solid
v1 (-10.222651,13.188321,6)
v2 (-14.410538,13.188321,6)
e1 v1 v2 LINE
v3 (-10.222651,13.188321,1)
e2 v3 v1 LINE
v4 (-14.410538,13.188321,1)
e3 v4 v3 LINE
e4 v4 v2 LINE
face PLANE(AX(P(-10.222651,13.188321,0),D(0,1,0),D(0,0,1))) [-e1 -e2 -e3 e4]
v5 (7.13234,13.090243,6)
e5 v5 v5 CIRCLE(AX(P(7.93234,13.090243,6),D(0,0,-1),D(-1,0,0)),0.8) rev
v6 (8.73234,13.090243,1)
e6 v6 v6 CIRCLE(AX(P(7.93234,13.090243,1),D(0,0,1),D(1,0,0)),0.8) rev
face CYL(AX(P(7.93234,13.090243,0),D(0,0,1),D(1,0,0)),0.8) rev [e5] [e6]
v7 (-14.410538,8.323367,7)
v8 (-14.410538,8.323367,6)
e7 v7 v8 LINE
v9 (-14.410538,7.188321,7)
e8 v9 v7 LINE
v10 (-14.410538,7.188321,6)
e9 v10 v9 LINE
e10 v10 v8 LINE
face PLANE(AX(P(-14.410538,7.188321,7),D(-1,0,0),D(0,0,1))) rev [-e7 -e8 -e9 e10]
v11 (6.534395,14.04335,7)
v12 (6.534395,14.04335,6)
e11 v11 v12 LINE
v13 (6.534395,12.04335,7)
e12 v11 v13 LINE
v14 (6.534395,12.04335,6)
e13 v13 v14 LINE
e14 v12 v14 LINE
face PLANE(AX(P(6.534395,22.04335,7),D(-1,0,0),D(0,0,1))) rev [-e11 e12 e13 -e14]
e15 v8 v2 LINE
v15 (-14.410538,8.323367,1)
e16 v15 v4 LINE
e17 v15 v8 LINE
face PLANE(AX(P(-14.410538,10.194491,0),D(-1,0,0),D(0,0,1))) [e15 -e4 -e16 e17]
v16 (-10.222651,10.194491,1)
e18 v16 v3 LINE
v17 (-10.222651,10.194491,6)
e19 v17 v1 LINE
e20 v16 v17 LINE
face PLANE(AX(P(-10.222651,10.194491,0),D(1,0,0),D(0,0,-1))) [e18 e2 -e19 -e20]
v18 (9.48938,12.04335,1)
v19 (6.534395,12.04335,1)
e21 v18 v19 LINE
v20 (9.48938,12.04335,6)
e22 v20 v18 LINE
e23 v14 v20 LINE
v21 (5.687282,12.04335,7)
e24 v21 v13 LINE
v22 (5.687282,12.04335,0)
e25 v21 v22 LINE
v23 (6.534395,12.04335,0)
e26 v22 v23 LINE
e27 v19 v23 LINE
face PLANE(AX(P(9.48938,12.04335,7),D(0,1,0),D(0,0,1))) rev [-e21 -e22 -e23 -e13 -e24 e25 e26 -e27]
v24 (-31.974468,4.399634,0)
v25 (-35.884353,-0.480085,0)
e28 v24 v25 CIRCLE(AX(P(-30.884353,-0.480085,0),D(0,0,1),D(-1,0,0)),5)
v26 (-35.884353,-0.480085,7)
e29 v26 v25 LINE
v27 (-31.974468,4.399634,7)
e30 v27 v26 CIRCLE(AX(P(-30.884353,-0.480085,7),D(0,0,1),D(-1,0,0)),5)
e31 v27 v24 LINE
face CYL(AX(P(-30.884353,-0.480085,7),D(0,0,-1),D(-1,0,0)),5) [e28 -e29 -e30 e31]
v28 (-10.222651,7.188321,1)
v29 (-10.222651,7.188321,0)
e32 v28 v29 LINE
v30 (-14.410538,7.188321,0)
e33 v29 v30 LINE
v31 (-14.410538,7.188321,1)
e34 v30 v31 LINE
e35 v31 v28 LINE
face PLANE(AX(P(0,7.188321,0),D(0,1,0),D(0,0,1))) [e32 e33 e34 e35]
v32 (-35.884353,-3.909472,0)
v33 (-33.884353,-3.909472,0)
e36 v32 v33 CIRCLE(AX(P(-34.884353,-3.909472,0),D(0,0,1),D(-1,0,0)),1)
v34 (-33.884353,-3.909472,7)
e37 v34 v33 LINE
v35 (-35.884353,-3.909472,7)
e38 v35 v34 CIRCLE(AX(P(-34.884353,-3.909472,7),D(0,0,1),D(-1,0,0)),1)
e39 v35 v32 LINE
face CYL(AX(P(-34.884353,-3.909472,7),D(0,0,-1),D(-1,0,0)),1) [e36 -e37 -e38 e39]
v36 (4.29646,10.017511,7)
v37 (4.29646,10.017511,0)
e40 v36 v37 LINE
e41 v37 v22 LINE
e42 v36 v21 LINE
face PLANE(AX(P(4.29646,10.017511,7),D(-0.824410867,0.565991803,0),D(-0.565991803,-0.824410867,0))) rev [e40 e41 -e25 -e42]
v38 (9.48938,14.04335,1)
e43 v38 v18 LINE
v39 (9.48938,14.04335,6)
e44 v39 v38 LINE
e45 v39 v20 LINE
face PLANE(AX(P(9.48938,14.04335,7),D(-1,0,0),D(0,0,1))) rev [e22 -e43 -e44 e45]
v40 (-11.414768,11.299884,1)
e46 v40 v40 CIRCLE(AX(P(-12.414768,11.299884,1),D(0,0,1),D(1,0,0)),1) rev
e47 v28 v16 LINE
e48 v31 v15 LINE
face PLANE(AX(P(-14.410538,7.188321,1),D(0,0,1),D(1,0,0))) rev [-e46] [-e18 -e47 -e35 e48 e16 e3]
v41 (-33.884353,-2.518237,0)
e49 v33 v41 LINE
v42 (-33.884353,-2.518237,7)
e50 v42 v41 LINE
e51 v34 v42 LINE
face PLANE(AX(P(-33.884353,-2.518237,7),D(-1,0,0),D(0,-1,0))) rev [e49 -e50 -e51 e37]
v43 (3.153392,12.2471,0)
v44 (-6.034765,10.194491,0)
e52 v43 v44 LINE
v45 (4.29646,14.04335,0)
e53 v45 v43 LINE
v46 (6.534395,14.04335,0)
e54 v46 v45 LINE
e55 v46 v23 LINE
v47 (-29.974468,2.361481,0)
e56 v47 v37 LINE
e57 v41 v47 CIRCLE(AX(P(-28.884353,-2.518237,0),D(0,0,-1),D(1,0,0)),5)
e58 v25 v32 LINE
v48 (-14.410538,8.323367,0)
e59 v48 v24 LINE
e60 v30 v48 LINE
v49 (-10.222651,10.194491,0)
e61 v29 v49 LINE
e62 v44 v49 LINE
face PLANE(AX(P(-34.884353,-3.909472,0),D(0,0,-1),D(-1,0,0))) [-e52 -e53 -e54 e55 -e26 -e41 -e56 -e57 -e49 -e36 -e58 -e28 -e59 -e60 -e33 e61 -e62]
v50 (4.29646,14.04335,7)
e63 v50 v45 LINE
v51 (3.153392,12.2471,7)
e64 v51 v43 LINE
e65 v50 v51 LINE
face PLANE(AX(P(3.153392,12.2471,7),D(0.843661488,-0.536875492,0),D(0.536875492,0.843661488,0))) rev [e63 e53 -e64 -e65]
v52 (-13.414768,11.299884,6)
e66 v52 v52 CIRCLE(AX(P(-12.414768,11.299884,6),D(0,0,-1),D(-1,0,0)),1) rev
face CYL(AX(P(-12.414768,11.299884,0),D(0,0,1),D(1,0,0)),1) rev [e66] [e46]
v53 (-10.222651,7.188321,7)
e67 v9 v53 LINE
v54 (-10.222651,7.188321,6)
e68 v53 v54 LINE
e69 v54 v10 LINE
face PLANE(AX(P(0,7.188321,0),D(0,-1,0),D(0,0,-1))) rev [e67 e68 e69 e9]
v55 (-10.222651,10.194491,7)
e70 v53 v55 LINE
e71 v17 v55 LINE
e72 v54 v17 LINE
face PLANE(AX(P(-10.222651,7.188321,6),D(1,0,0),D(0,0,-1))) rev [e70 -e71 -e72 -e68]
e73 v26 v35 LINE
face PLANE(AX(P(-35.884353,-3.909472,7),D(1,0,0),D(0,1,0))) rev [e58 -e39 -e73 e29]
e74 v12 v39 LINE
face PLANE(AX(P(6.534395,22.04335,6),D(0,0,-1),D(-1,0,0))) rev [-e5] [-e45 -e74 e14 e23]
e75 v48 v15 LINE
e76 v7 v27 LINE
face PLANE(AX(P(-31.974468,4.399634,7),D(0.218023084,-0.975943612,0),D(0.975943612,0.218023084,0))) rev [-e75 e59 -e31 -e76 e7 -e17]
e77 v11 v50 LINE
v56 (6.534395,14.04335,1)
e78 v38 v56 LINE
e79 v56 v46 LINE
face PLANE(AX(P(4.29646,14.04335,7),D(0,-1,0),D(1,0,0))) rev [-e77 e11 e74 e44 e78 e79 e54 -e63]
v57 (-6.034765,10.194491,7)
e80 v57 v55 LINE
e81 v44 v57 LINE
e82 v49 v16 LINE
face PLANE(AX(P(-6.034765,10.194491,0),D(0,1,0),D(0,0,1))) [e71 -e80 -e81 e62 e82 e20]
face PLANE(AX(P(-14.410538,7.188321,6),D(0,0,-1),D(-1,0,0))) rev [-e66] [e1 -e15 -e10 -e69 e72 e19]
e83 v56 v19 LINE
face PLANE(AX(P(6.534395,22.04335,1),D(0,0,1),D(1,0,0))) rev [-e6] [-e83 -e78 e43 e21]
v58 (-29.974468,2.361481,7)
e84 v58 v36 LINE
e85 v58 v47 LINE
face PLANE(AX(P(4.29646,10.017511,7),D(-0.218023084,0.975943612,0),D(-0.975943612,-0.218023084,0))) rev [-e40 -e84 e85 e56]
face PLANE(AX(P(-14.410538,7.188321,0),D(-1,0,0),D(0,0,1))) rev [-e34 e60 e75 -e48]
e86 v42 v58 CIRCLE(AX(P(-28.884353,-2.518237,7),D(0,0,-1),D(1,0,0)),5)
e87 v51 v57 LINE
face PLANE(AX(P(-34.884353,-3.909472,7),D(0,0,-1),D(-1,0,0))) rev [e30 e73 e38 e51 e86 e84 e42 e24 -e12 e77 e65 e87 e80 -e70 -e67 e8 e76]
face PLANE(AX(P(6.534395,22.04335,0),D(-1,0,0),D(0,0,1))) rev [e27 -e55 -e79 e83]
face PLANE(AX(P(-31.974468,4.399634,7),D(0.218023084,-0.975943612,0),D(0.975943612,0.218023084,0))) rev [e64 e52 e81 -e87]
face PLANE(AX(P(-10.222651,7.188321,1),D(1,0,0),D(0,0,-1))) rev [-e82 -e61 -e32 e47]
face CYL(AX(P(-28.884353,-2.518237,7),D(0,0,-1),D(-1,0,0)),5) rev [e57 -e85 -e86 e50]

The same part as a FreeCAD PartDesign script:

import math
import FreeCAD as App
import Part
import Sketcher
from FreeCAD import Vector


def add_polygon(sketch, points):
    """Adds a closed chain of lines whose ends are joined by coincident constraints."""
    first, n = sketch.GeometryCount, len(points)
    for a, b in zip(points, points[1:] + points[:1]):
        sketch.addGeometry(Part.LineSegment(App.Vector(*a, 0), App.Vector(*b, 0)), False)
    for i in range(n):
        sketch.addConstraint(Sketcher.Constraint("Coincident", first + i, 2, first + (i + 1) % n, 1))

doc = App.newDocument("Part")
params = doc.addObject("Spreadsheet::Sheet", "Params")
for row, (alias, value) in enumerate([
    ("sketch1_radius", "5 mm"),
    ("sketch1_radius2", "1 mm"),
    ("sketch1_height", "2 mm"),
    ("pad1_length", "7 mm"),
    ("pad2_length", "7 mm"),
    ("sketch3_diameter", "2 mm"),
    ("pocket1_length", "7 mm"),
    ("sketch4_diameter", "1.6 mm"),
    ("pocket2_length", "7 mm"),
    ("sketch5_height", "1 mm"),
    ("pocket3_length", "10 mm"),
    ("sketch6_height", "1 mm"),
    ("pocket4_length", "6 mm"),
], start=1):
    params.set(f"A{row}", alias)
    params.set(f"B{row}", "=" + value)
    params.setAlias(f"B{row}", alias)

body = doc.addObject("PartDesign::Body", "Body")

# Sketch on XY plane
sketch1 = body.newObject("Sketcher::SketchObject", "Sketch")
sketch1.AttachmentSupport = (doc.getObject("XY_Plane"), [""])
sketch1.MapMode = "FlatFace"
sketch1.addGeometry([
    Part.LineSegment(Vector(4.29646, 14.04335, 0), Vector(3.153392, 12.2471, 0)),  # 0
    Part.LineSegment(Vector(3.153392, 12.2471, 0), Vector(-31.974468, 4.399634, 0)),  # 1
    Part.ArcOfCircle(Part.Circle(Vector(-30.884353, -0.480085, 0), Vector(0, 0, 1), 5), math.radians(102.592946), math.radians(180)),  # 2
    Part.LineSegment(Vector(-35.884353, -0.480085, 0), Vector(-35.884353, -3.909472, 0)),  # 3
    Part.ArcOfCircle(Part.Circle(Vector(-34.884353, -3.909472, 0), Vector(0, 0, 1), 1), math.radians(180), math.radians(360)),  # 4
    Part.LineSegment(Vector(-33.884353, -3.909472, 0), Vector(-33.884353, -2.518237, 0)),  # 5
    Part.ArcOfCircle(Part.Circle(Vector(-28.884353, -2.518237, 0), Vector(0, 0, 1), 5), math.radians(102.592946), math.radians(180)),  # 6
    Part.LineSegment(Vector(-29.974468, 2.361481, 0), Vector(4.29646, 10.017511, 0)),  # 7
    Part.LineSegment(Vector(4.29646, 10.017511, 0), Vector(5.687282, 12.04335, 0)),  # 8
    Part.LineSegment(Vector(5.687282, 12.04335, 0), Vector(9.48938, 12.04335, 0)),  # 9
    Part.LineSegment(Vector(9.48938, 12.04335, 0), Vector(9.48938, 14.04335, 0)),  # 10
    Part.LineSegment(Vector(9.48938, 14.04335, 0), Vector(4.29646, 14.04335, 0)),  # 11
], False)
sketch1.addConstraint([
    Sketcher.Constraint("Coincident", 0, 2, 1, 1),
    Sketcher.Constraint("Tangent", 1, 2, 2, 1),
    Sketcher.Constraint("Tangent", 2, 2, 3, 1),
    Sketcher.Constraint("Tangent", 3, 2, 4, 1),
    Sketcher.Constraint("Tangent", 4, 2, 5, 1),
    Sketcher.Constraint("Tangent", 5, 2, 6, 2),
    Sketcher.Constraint("Tangent", 6, 1, 7, 1),
    Sketcher.Constraint("Coincident", 7, 2, 8, 1),
    Sketcher.Constraint("Coincident", 8, 2, 9, 1),
    Sketcher.Constraint("Coincident", 9, 2, 10, 1),
    Sketcher.Constraint("Coincident", 10, 2, 11, 1),
    Sketcher.Constraint("Coincident", 11, 2, 0, 1),
    Sketcher.Constraint("Vertical", 3),
    Sketcher.Constraint("Vertical", 5),
    Sketcher.Constraint("Horizontal", 9),
    Sketcher.Constraint("Vertical", 10),
    Sketcher.Constraint("Horizontal", 11),
    Sketcher.Constraint("Equal", 2, 6),
    Sketcher.Constraint("Parallel", 1, 7),
    Sketcher.Constraint("Vertical", 7, 2, 11, 2),
    Sketcher.Constraint("Radius", 2, 5.0),
    Sketcher.Constraint("Radius", 4, 1.0),
    Sketcher.Constraint("DistanceY", 10, 1, 10, 2, 2.0),
    Sketcher.Constraint("DistanceX", 9, 1, 9, 2, 3.802098),
    Sketcher.Constraint("DistanceX", 11, 2, 11, 1, 5.19292),
    Sketcher.Constraint("DistanceY", -1, 1, 0, 2, 12.2471),
    Sketcher.Constraint("Distance", 1, 35.993739),
    Sketcher.Constraint("DistanceY", 3, 2, 3, 1, 3.429387),
    Sketcher.Constraint("DistanceY", 5, 1, 5, 2, 1.391235),
    Sketcher.Constraint("DistanceY", 4, 3, -1, 1, 3.909472),
    Sketcher.Constraint("DistanceX", -1, 1, 0, 2, 3.153392),
    Sketcher.Constraint("DistanceX", -1, 1, 7, 2, 4.29646),
    Sketcher.Constraint("DistanceY", -1, 1, 8, 2, 12.04335),
])
sketch1.setExpression("Constraints[20]", "Params.sketch1_radius")
sketch1.setExpression("Constraints[21]", "Params.sketch1_radius2")
sketch1.setExpression("Constraints[22]", "Params.sketch1_height")
pad1 = body.newObject("PartDesign::Pad", "Pad")
pad1.Profile = sketch1
pad1.setExpression("Length", "Params.pad1_length")

# Sketch on XY plane
sketch2 = body.newObject("Sketcher::SketchObject", "Sketch001")
sketch2.AttachmentSupport = (doc.getObject("XY_Plane"), [""])
sketch2.MapMode = "FlatFace"
sketch2.AttachmentOffset = App.Placement(Vector(0, 0, 7), App.Rotation())
add_polygon(sketch2, [(-6.034765, 10.194491), (-10.222651, 10.194491), (-10.222651, 13.188321), (-14.410538, 13.188321), (-14.410538, 8.323367)])  # lines 0-4
sketch2.addConstraint([
    Sketcher.Constraint("Horizontal", 0),
    Sketcher.Constraint("Vertical", 1),
    Sketcher.Constraint("Horizontal", 2),
    Sketcher.Constraint("Vertical", 3),
    Sketcher.Constraint("Equal", 0, 2),
    Sketcher.Constraint("DistanceY", 1, 1, 1, 2, 2.99383),
    Sketcher.Constraint("Distance", 4, 8.582231),
    Sketcher.Constraint("DistanceX", 0, 2, 0, 1, 4.187887),
    Sketcher.Constraint("DistanceX", 0, 2, -1, 1, 10.222651),
    Sketcher.Constraint("DistanceY", -1, 1, 0, 2, 10.194491),
])
pad2 = body.newObject("PartDesign::Pad", "Pad001")
pad2.Profile = sketch2
pad2.setExpression("Length", "Params.pad2_length")
pad2.Reversed = True

# Sketch on XY plane
sketch3 = body.newObject("Sketcher::SketchObject", "Sketch002")
sketch3.AttachmentSupport = (doc.getObject("XY_Plane"), [""])
sketch3.MapMode = "FlatFace"
sketch3.AttachmentOffset = App.Placement(Vector(0, 0, 7), App.Rotation())
sketch3.addGeometry(Part.Circle(Vector(-12.414768, 11.299884, 0), Vector(0, 0, 1), 1), False)
sketch3.addConstraint([
    Sketcher.Constraint("Diameter", 0, 2.0),
    Sketcher.Constraint("DistanceX", 0, 3, -1, 1, 12.414768),
    Sketcher.Constraint("DistanceY", -1, 1, 0, 3, 11.299884),
])
sketch3.setExpression("Constraints[0]", "Params.sketch3_diameter")
pocket1 = body.newObject("PartDesign::Pocket", "Pocket")
pocket1.Profile = sketch3
pocket1.setExpression("Length", "Params.pocket1_length")

# Sketch on XY plane
sketch4 = body.newObject("Sketcher::SketchObject", "Sketch003")
sketch4.AttachmentSupport = (doc.getObject("XY_Plane"), [""])
sketch4.MapMode = "FlatFace"
sketch4.AttachmentOffset = App.Placement(Vector(0, 0, 7), App.Rotation())
sketch4.addGeometry(Part.Circle(Vector(7.93234, 13.090243, 0), Vector(0, 0, 1), 0.8), False)
sketch4.addConstraint([
    Sketcher.Constraint("Diameter", 0, 1.6),
    Sketcher.Constraint("DistanceX", -1, 1, 0, 3, 7.93234),
    Sketcher.Constraint("DistanceY", -1, 1, 0, 3, 13.090243),
])
sketch4.setExpression("Constraints[0]", "Params.sketch4_diameter")
pocket2 = body.newObject("PartDesign::Pocket", "Pocket001")
pocket2.Profile = sketch4
pocket2.setExpression("Length", "Params.pocket2_length")

# Sketch on XZ plane
sketch5 = body.newObject("Sketcher::SketchObject", "Sketch004")
sketch5.AttachmentSupport = (doc.getObject("XZ_Plane"), [""])
sketch5.MapMode = "FlatFace"
sketch5.AttachmentOffset = App.Placement(Vector(0, 0, -12.04335), App.Rotation())
add_polygon(sketch5, [(6.534395, 7), (6.534395, 6), (9.48938, 6), (9.48938, 7)])  # lines 0-3
add_polygon(sketch5, [(6.534395, 1), (6.534395, 0), (9.48938, 0), (9.48938, 1)])  # lines 4-7
sketch5.addConstraint([
    Sketcher.Constraint("Vertical", 0),
    Sketcher.Constraint("Horizontal", 1),
    Sketcher.Constraint("Vertical", 2),
    Sketcher.Constraint("Horizontal", 3),
    Sketcher.Constraint("Vertical", 4),
    Sketcher.Constraint("Horizontal", 5),
    Sketcher.Constraint("Vertical", 6),
    Sketcher.Constraint("Horizontal", 7),
    Sketcher.Constraint("PointOnObject", 4, 2, -1),
    Sketcher.Constraint("Vertical", 3, 2, 4, 2),
    Sketcher.Constraint("Vertical", 2, 2, 5, 2),
    Sketcher.Constraint("Equal", 2, 4),
    Sketcher.Constraint("DistanceY", 0, 2, 0, 1, 1.0),
    Sketcher.Constraint("DistanceY", -1, 1, 0, 2, 6.0),
    Sketcher.Constraint("DistanceX", 1, 1, 1, 2, 2.954985),
    Sketcher.Constraint("DistanceX", -1, 1, 1, 2, 9.48938),
])
sketch5.setExpression("Constraints[20]", "Params.sketch5_height")
pocket3 = body.newObject("PartDesign::Pocket", "Pocket002")
pocket3.Profile = sketch5
pocket3.setExpression("Length", "Params.pocket3_length")

# Sketch on XZ plane
sketch6 = body.newObject("Sketcher::SketchObject", "Sketch005")
sketch6.AttachmentSupport = (doc.getObject("XZ_Plane"), [""])
sketch6.MapMode = "FlatFace"
sketch6.AttachmentOffset = App.Placement(Vector(0, 0, -13.188321), App.Rotation())
add_polygon(sketch6, [(-14.410538, 0), (-14.410538, 1), (-10.222651, 1), (-10.222651, 0)])  # lines 0-3
add_polygon(sketch6, [(-14.410538, 6), (-14.410538, 7), (-10.222651, 7), (-10.222651, 6)])  # lines 4-7
sketch6.addConstraint([
    Sketcher.Constraint("Vertical", 0),
    Sketcher.Constraint("Horizontal", 1),
    Sketcher.Constraint("Vertical", 2),
    Sketcher.Constraint("Horizontal", 3),
    Sketcher.Constraint("Vertical", 4),
    Sketcher.Constraint("Horizontal", 5),
    Sketcher.Constraint("Vertical", 6),
    Sketcher.Constraint("Horizontal", 7),
    Sketcher.Constraint("PointOnObject", 2, 2, -1),
    Sketcher.Constraint("Vertical", 3, 2, 4, 2),
    Sketcher.Constraint("Vertical", 2, 2, 5, 2),
    Sketcher.Constraint("Equal", 2, 4),
    Sketcher.Constraint("DistanceY", 0, 1, 0, 2, 1.0),
    Sketcher.Constraint("DistanceY", -1, 1, 4, 2, 7.0),
    Sketcher.Constraint("DistanceX", 1, 1, 1, 2, 4.187887),
    Sketcher.Constraint("DistanceX", 0, 2, -1, 1, 14.410538),
])
sketch6.setExpression("Constraints[20]", "Params.sketch6_height")
pocket4 = body.newObject("PartDesign::Pocket", "Pocket003")
pocket4.Profile = sketch6
pocket4.setExpression("Length", "Params.pocket4_length")
pocket4.Reversed = True

doc.recompute()
